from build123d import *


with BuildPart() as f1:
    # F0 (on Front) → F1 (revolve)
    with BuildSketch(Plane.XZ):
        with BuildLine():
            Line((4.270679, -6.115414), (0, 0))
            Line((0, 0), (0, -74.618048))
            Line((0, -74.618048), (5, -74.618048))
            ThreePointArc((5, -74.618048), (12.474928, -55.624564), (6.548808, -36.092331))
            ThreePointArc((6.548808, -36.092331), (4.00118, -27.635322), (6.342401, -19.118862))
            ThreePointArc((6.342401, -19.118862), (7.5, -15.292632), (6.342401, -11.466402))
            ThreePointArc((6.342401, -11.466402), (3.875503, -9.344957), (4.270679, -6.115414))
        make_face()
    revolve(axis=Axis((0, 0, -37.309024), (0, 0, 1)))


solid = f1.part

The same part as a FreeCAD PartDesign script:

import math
import FreeCAD as App
import Part
import Sketcher

V = App.Vector

doc = App.newDocument("Part")
body = doc.addObject("PartDesign::Body", "Body")

sketch1 = body.newObject("Sketcher::SketchObject", "Sketch")
sketch1.AttachmentSupport = (doc.getObject("XZ_Plane"), [""])
sketch1.MapMode = "FlatFace"
sketch1.addGeometry([
    Part.LineSegment(V(4.3, -6.1, 0), V(0, 0, 0)),
    Part.LineSegment(V(0, 0, 0), V(0, -74.6, 0)),
    Part.LineSegment(V(0, -74.6, 0), V(5, -74.6, 0)),
    Part.ArcOfCircle(Part.Circle(V(-18.6, -54.4, 0), V(0, 0, 1), 31.1), math.radians(-41), math.radians(36)),
    Part.ArcOfCircle(Part.Circle(V(20, -27.4, 0), V(0, 0, 1), 16), math.radians(149), math.radians(213)),
    Part.ArcOfCircle(Part.Circle(V(0.6, -15.3, 0), V(0, 0, 1), 6.9), math.radians(-34), math.radians(34)),
    Part.ArcOfCircle(Part.Circle(V(7.1, -8.1, 0), V(0, 0, 1), 3.4), math.radians(145), math.radians(257)),
], False)
sketch1.addConstraint([
    Sketcher.Constraint("Coincident", 0, 2, 1, 1),
    Sketcher.Constraint("Coincident", 1, 2, 2, 1),
    Sketcher.Constraint("Coincident", 2, 2, 3, 1),
    Sketcher.Constraint("Coincident", 3, 2, 4, 2),
    Sketcher.Constraint("Coincident", 4, 1, 5, 1),
    Sketcher.Constraint("Coincident", 5, 2, 6, 2),
    Sketcher.Constraint("Coincident", 6, 1, 0, 1),
    Sketcher.Constraint("Vertical", 1),
    Sketcher.Constraint("Horizontal", 2),
    Sketcher.Constraint("Coincident", 0, 2, -1, 1),
    Sketcher.Constraint("Vertical", 4, 1, 5, 2),
    Sketcher.Constraint("DistanceX", 2, 1, 2, 2, 5.0),
    Sketcher.Constraint("Radius", 4, 15.955829),
    Sketcher.Constraint("Radius", 5, 6.902248),
    Sketcher.Constraint("Radius", 6, 3.449261),
    Sketcher.Constraint("Radius", 3, 31.064043),
    Sketcher.Constraint("DistanceY", 1, 2, 1, 1, 74.618048),
    Sketcher.Constraint("DistanceX", -1, 1, 6, 3, 7.092099),
    Sketcher.Constraint("DistanceY", 6, 3, -1, 1, 8.0996),
    Sketcher.Constraint("DistanceX", -1, 1, 4, 1, 6.342401),
    Sketcher.Constraint("DistanceY", 3, 2, 5, 3, 20.799699),
    Sketcher.Constraint("Distance", 0, 7.459021),
    Sketcher.Constraint("DistanceX", -1, 1, 4, 3, 19.95583),
    Sketcher.Constraint("DistanceX", -1, 1, 5, 3, 0.597752),
])
revolution = body.newObject("PartDesign::Revolution", "Revolution")
revolution.Profile = sketch1
revolution.ReferenceAxis = (sketch1, ["V_Axis"])
revolution.Angle = 360

doc.recompute()
